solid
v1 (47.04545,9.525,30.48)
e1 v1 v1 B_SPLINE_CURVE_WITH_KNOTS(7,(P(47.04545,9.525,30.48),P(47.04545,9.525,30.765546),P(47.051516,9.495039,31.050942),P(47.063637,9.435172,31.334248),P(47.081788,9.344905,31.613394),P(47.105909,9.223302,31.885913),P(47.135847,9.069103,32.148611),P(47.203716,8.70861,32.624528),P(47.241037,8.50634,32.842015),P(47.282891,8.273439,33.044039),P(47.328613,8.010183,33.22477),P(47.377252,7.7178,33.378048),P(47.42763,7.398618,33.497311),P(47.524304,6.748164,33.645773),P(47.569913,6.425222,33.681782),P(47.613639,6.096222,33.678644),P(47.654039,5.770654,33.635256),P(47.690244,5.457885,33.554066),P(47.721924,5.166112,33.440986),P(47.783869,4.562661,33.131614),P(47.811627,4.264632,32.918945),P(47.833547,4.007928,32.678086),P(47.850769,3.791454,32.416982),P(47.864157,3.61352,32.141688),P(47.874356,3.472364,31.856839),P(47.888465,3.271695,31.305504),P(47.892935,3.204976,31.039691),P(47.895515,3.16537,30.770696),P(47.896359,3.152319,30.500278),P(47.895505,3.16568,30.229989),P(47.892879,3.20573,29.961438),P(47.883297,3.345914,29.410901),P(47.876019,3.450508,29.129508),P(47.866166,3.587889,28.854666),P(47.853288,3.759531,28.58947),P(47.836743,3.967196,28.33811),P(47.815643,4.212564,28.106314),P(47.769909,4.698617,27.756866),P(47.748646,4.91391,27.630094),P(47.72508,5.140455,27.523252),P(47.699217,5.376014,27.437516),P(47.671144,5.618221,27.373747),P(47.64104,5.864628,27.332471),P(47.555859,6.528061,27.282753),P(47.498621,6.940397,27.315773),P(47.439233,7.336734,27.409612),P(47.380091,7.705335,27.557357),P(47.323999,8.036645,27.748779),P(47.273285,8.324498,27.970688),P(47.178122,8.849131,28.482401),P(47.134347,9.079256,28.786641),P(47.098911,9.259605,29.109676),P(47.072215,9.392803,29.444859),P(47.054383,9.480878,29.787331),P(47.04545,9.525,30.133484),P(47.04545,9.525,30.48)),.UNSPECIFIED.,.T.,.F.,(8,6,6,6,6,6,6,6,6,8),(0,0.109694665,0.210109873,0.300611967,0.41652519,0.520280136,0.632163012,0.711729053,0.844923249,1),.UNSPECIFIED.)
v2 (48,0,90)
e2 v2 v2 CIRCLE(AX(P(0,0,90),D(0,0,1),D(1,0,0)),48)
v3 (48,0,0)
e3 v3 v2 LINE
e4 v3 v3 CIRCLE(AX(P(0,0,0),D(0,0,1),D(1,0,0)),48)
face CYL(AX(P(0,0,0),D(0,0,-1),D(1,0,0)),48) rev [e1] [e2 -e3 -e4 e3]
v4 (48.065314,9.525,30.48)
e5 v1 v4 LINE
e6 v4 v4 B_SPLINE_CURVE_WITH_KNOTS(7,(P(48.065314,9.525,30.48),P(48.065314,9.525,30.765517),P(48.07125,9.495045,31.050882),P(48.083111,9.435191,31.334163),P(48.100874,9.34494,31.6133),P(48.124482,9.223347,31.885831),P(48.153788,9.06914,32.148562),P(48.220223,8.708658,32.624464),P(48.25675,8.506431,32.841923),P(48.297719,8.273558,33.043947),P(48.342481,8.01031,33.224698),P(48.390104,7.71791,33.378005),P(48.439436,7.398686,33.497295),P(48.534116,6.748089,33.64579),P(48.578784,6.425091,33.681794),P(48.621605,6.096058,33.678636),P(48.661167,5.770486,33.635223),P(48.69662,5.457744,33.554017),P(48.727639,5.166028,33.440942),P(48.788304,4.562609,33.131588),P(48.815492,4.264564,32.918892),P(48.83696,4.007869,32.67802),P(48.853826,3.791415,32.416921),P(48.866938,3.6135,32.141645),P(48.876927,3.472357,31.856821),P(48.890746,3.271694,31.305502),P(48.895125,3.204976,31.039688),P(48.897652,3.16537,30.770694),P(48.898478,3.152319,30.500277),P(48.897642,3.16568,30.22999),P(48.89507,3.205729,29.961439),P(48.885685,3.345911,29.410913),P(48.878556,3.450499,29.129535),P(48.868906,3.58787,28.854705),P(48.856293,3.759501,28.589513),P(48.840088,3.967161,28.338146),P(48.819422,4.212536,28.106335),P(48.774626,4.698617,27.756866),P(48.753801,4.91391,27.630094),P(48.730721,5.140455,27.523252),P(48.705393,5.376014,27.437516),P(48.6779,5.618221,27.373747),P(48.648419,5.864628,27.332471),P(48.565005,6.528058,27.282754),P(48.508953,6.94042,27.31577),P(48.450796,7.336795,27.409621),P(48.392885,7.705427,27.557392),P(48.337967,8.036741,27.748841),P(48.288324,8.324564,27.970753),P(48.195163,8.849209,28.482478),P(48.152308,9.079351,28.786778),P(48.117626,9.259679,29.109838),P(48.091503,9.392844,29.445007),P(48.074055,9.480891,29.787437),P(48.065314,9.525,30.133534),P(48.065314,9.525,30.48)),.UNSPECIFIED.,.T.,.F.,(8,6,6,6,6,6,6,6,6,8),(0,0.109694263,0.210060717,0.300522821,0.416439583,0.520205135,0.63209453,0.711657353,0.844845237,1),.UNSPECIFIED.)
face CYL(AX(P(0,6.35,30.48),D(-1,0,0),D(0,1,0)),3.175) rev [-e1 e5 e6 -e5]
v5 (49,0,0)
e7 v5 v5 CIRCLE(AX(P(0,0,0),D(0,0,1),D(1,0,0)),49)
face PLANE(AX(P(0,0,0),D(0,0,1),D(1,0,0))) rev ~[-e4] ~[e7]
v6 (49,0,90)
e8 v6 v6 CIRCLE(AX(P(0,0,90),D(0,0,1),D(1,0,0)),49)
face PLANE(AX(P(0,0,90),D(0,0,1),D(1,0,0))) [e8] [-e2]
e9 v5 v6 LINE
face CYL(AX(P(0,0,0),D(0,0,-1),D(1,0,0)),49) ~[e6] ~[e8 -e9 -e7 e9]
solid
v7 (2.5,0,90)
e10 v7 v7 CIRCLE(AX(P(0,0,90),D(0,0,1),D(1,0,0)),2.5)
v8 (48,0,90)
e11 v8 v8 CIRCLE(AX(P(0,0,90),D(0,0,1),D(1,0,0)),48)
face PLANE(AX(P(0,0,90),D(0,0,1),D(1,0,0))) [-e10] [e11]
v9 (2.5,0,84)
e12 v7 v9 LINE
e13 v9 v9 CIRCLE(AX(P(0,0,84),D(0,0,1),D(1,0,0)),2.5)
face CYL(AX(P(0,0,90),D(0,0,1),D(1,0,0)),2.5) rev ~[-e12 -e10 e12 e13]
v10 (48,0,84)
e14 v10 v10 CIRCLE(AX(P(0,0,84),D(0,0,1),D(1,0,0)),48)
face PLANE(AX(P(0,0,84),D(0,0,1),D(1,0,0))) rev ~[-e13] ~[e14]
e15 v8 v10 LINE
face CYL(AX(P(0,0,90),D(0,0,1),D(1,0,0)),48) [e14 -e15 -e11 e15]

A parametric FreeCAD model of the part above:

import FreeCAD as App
import Part
import Sketcher

V = App.Vector

doc = App.newDocument("Part")
body = doc.addObject("PartDesign::Body", "Body")

sketch1 = body.newObject("Sketcher::SketchObject", "Sketch")
sketch1.AttachmentSupport = (doc.getObject("XY_Plane"), [""])
sketch1.MapMode = "FlatFace"
sketch1.addGeometry(Part.Circle(V(0, 0, 0), V(0, 0, 1), 49), False)
sketch1.addGeometry(Part.Circle(V(0, 0, 0), V(0, 0, 1), 48), False)
sketch1.addConstraint(Sketcher.Constraint("Coincident", 0, 3, -1, 1))
sketch1.addConstraint(Sketcher.Constraint("Coincident", 1, 3, -1, 1))
sketch1.addConstraint(Sketcher.Constraint("Diameter", 0, 98.0))
sketch1.addConstraint(Sketcher.Constraint("Diameter", 1, 96.0))
pad1 = body.newObject("PartDesign::Pad", "Pad")
pad1.Profile = sketch1
pad1.Length = 90

sketch2 = body.newObject("Sketcher::SketchObject", "Sketch001")
sketch2.AttachmentSupport = (doc.getObject("YZ_Plane"), [""])
sketch2.MapMode = "FlatFace"
sketch2.addGeometry(Part.Circle(V(6.3, 30.5, 0), V(0, 0, 1), 3.2), False)
sketch2.addConstraint(Sketcher.Constraint("Diameter", 0, 6.35))
sketch2.addConstraint(Sketcher.Constraint("DistanceX", -1, 1, 0, 3, 6.35))
sketch2.addConstraint(Sketcher.Constraint("DistanceY", -1, 1, 0, 3, 30.48))
pocket1 = body.newObject("PartDesign::Pocket", "Pocket")
pocket1.Profile = sketch2
pocket1.Length = 127
pocket1.Reversed = True
body2 = doc.addObject("PartDesign::Body", "Body001")

sketch3 = body2.newObject("Sketcher::SketchObject", "Sketch002")
sketch3.AttachmentSupport = (doc.getObject("XY_Plane001"), [""])
sketch3.MapMode = "FlatFace"
sketch3.AttachmentOffset = App.Placement(V(0, 0, 90), App.Rotation())
sketch3.addGeometry(Part.Circle(V(0, 0, 0), V(0, 0, 1), 48), False)
sketch3.addGeometry(Part.Circle(V(0, 0, 0), V(0, 0, 1), 2.5), False)
sketch3.addConstraint(Sketcher.Constraint("Coincident", 0, 3, -1, 1))
sketch3.addConstraint(Sketcher.Constraint("Coincident", 1, 3, -1, 1))
sketch3.addConstraint(Sketcher.Constraint("Diameter", 0, 96.0))
sketch3.addConstraint(Sketcher.Constraint("Diameter", 1, 5.0))
pad2 = body2.newObject("PartDesign::Pad", "Pad001")
pad2.Profile = sketch3
pad2.Length = 6
pad2.Reversed = True

doc.recompute()
